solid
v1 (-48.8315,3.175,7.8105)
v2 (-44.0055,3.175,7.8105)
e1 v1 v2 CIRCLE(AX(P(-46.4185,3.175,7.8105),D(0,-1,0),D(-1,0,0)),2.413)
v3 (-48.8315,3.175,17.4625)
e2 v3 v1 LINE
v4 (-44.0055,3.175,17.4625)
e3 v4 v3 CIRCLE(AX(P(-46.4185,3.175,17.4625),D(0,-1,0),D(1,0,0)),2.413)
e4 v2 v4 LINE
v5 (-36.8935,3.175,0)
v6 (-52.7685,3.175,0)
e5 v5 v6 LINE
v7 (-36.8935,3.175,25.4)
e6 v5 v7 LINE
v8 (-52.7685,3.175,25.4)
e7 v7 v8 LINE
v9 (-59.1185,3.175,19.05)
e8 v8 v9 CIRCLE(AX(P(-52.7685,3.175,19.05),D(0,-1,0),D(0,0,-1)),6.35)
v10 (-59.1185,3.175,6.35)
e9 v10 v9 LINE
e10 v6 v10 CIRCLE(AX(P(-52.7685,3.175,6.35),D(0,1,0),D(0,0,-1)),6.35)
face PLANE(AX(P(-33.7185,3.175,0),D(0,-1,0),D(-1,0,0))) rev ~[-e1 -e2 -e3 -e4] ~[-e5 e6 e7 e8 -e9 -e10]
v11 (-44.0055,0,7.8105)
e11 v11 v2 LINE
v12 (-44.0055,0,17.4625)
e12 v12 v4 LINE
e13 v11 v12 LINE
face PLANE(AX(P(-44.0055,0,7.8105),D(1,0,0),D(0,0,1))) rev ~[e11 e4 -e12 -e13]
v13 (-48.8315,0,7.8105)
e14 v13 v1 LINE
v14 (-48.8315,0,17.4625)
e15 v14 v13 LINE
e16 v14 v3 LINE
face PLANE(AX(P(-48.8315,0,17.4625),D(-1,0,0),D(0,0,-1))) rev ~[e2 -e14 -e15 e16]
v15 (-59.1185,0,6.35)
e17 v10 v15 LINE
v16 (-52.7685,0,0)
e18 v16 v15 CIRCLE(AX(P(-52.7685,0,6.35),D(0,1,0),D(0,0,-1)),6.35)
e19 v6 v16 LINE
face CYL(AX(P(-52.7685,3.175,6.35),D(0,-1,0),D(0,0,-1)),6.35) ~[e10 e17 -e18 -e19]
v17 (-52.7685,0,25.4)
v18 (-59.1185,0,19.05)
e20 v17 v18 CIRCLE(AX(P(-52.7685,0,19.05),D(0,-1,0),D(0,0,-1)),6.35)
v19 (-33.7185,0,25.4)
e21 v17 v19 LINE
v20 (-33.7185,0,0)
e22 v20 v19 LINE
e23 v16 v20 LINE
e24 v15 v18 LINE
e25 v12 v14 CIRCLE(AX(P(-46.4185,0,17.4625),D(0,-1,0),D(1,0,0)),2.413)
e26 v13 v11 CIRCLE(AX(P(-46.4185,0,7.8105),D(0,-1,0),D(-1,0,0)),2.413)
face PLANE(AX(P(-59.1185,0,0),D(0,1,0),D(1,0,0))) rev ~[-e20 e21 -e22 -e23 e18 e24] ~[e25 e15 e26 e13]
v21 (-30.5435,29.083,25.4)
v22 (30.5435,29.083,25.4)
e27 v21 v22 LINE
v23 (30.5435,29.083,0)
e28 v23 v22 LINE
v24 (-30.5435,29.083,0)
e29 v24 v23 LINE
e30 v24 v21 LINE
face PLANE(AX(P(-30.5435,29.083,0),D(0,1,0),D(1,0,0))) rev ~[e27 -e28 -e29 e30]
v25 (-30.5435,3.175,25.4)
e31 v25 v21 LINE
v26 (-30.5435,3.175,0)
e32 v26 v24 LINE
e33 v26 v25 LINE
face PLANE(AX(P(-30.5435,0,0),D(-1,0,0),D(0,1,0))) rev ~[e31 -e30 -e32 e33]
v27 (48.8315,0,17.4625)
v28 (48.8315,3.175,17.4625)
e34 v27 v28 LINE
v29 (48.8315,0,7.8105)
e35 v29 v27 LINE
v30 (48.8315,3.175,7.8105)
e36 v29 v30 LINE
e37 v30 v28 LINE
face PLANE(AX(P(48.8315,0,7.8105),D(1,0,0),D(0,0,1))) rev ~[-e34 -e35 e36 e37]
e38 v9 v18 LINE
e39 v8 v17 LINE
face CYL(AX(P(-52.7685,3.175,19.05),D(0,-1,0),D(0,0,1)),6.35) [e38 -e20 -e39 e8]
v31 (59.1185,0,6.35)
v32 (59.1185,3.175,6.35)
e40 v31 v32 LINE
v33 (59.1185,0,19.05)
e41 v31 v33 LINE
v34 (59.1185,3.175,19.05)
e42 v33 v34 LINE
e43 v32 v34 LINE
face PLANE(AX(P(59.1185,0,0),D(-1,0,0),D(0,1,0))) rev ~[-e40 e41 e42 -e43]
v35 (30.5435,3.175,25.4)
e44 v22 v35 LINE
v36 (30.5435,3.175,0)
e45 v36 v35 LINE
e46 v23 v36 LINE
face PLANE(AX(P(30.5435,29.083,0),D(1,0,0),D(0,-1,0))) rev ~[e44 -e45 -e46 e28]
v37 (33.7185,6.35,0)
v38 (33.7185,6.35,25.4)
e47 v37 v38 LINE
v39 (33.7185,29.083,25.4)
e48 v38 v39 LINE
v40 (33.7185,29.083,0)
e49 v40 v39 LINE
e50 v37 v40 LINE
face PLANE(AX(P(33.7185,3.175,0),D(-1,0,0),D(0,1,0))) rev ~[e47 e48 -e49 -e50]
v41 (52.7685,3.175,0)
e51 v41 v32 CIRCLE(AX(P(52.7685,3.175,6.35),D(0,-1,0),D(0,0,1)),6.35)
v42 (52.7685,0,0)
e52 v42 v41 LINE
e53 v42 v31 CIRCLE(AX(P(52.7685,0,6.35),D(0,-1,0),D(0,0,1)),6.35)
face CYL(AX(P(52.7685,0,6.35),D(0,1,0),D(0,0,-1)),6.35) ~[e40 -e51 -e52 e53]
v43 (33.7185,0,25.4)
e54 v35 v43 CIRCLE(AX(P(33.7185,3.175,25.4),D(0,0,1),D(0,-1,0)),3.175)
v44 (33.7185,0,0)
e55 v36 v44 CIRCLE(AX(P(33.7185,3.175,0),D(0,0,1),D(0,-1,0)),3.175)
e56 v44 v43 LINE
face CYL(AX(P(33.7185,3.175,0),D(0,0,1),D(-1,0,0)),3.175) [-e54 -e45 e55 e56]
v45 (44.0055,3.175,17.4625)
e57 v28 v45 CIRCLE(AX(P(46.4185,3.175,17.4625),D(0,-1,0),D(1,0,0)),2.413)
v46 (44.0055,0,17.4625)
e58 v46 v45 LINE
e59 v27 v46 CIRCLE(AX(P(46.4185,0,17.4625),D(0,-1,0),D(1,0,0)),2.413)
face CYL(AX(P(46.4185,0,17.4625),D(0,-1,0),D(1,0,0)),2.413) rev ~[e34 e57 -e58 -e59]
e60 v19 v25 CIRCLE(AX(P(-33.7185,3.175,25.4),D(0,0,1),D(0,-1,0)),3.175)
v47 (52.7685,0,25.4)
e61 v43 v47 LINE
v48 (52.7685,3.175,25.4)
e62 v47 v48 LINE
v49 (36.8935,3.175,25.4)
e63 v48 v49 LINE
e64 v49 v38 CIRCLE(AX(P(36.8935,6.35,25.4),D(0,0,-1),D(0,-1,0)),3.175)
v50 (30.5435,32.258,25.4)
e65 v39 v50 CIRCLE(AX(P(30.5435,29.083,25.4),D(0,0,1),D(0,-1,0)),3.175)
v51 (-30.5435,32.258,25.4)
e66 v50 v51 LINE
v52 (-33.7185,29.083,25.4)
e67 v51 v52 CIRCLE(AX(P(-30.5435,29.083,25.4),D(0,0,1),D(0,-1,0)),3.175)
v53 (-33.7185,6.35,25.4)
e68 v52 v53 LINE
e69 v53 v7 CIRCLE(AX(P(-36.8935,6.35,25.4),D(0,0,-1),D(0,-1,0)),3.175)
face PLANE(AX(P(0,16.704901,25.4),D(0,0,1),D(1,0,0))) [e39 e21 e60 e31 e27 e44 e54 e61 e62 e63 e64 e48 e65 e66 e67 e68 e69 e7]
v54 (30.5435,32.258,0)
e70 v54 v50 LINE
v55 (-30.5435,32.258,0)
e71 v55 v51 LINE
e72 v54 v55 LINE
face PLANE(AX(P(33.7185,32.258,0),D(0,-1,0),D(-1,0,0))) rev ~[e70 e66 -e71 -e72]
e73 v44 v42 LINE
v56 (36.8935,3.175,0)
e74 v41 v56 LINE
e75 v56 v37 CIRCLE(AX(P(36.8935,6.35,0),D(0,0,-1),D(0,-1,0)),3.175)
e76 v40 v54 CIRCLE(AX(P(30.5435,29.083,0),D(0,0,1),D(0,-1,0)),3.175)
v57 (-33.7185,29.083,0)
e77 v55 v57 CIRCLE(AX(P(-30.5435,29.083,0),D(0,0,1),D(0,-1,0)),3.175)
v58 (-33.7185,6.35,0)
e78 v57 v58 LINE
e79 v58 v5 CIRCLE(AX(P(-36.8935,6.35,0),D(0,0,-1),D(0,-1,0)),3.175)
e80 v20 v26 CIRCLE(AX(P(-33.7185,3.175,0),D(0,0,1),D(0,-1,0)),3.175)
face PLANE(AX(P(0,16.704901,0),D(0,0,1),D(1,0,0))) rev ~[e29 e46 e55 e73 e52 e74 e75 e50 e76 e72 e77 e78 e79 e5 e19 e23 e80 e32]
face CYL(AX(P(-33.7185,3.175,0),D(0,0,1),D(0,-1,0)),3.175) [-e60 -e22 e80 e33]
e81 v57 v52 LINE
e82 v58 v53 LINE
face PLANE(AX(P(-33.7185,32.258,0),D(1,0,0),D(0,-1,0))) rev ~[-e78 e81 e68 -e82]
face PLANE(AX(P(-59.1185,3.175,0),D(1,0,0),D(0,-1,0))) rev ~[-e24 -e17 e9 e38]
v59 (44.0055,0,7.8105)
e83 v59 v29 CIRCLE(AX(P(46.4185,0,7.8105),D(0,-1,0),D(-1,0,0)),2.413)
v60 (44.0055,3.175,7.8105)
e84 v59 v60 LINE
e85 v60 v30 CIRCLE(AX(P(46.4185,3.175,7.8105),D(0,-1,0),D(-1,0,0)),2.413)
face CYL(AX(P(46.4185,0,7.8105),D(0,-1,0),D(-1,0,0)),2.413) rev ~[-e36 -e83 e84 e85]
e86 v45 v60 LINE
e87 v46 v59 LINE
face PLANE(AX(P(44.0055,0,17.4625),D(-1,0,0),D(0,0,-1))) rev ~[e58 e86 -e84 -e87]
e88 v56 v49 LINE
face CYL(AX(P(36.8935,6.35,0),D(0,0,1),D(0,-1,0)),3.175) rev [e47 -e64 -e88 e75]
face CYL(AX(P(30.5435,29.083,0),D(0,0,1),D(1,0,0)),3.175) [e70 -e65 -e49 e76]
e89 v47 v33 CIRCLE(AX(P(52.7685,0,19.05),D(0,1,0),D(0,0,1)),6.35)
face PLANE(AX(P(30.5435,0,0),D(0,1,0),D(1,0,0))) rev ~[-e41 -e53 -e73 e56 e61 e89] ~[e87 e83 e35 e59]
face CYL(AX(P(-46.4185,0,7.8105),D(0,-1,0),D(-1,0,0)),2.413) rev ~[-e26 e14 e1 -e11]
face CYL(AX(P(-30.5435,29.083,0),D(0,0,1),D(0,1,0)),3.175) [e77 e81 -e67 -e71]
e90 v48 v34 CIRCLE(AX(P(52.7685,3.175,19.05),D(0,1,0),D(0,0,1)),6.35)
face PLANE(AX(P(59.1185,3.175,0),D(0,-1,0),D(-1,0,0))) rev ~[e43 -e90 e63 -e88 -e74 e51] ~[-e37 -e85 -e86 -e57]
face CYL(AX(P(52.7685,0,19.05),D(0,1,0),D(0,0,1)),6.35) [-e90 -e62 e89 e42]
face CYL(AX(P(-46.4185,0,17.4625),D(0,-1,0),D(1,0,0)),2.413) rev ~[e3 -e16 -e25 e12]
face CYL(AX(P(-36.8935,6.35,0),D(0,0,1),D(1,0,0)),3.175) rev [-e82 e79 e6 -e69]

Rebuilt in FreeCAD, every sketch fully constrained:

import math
import FreeCAD as App
import Part
import Sketcher
from FreeCAD import Vector
Q = App.Units.Quantity


def edges_at(feature, points):
    """Names of the edges that pass closest to the given points."""
    edges = feature.Shape.Edges
    near = lambda p: min(range(len(edges)), key=lambda i: edges[i].distToShape(Part.Vertex(*p))[0])
    return sorted({f"Edge{near(p) + 1}" for p in points})

doc = App.newDocument("Part")
body = doc.addObject("PartDesign::Body", "Body")

# Sketch on XY plane
sketch1 = doc.addObject("Sketcher::SketchObject", "Sketch")
body.addObject(sketch1)
sketch1.AttachmentSupport = (doc.XY_Plane, [""])
sketch1.MapMode = "FlatFace"
sketch1.addGeometry([
    Part.LineSegment(Vector(-30.5, 29.1, 0), Vector(30.5, 29.1, 0)),  # 0
    Part.LineSegment(Vector(30.5, 29.1, 0), Vector(30.5, 0, 0)),  # 1
    Part.LineSegment(Vector(30.5, 0, 0), Vector(59.1, 0, 0)),  # 2
    Part.LineSegment(Vector(59.1, 0, 0), Vector(59.1, 3.2, 0)),  # 3
    Part.LineSegment(Vector(59.1, 3.2, 0), Vector(33.7, 3.2, 0)),  # 4
    Part.LineSegment(Vector(33.7, 3.2, 0), Vector(33.7, 32.3, 0)),  # 5
    Part.LineSegment(Vector(33.7, 32.3, 0), Vector(-33.7, 32.3, 0)),  # 6
    Part.LineSegment(Vector(-33.7, 32.3, 0), Vector(-33.7, 3.2, 0)),  # 7
    Part.LineSegment(Vector(-33.7, 3.2, 0), Vector(-59.1, 3.2, 0)),  # 8
    Part.LineSegment(Vector(-59.1, 3.2, 0), Vector(-59.1, 0, 0)),  # 9
    Part.LineSegment(Vector(-59.1, 0, 0), Vector(-30.5, 0, 0)),  # 10
    Part.LineSegment(Vector(-30.5, 0, 0), Vector(-30.5, 29.1, 0)),  # 11
], False)
sketch1.addConstraint([
    Sketcher.Constraint("Coincident", 0, 2, 1, 1),
    Sketcher.Constraint("Coincident", 1, 2, 2, 1),
    Sketcher.Constraint("Coincident", 2, 2, 3, 1),
    Sketcher.Constraint("Coincident", 3, 2, 4, 1),
    Sketcher.Constraint("Coincident", 4, 2, 5, 1),
    Sketcher.Constraint("Coincident", 5, 2, 6, 1),
    Sketcher.Constraint("Coincident", 6, 2, 7, 1),
    Sketcher.Constraint("Coincident", 7, 2, 8, 1),
    Sketcher.Constraint("Coincident", 8, 2, 9, 1),
    Sketcher.Constraint("Coincident", 9, 2, 10, 1),
    Sketcher.Constraint("Coincident", 10, 2, 11, 1),
    Sketcher.Constraint("Coincident", 11, 2, 0, 1),
    Sketcher.Constraint("Horizontal", 0),
    Sketcher.Constraint("Vertical", 1),
    Sketcher.Constraint("Horizontal", 2),
    Sketcher.Constraint("Vertical", 3),
    Sketcher.Constraint("Horizontal", 4),
    Sketcher.Constraint("Vertical", 5),
    Sketcher.Constraint("Horizontal", 6),
    Sketcher.Constraint("Vertical", 7),
    Sketcher.Constraint("Horizontal", 8),
    Sketcher.Constraint("Vertical", 9),
    Sketcher.Constraint("Horizontal", 10),
    Sketcher.Constraint("Vertical", 11),
    Sketcher.Constraint("Symmetric", 2, 2, 9, 2, -1, 1),
    Sketcher.Constraint("Symmetric", 4, 2, 7, 2, -2),
    Sketcher.Constraint("Symmetric", 1, 2, 10, 2, -2),
    Sketcher.Constraint("Equal", 1, 5),
    Sketcher.Constraint("DistanceX", 4, 2, 4, 1, Q("1 in")),
    Sketcher.Constraint("DistanceX", 0, 1, 0, 2, Q("2.405 in")),
    Sketcher.Constraint("DistanceX", 2, 1, 2, 2, Q("1.125 in")),
    Sketcher.Constraint("DistanceY", 1, 2, 1, 1, Q("1.145 in")),
    Sketcher.Constraint("DistanceY", 3, 1, 3, 2, Q("0.125 in")),
])
pad1 = doc.addObject("PartDesign::Pad", "Pad")
body.addObject(pad1)
pad1.Profile = sketch1
pad1.Length = Q("1 in")
doc.recompute()

fillet = doc.addObject("PartDesign::Fillet", "Fillet")
body.addObject(fillet)
fillet.Base = (pad1, edges_at(pad1, [(-30.544, 0, 12.7), (30.544, 0, 12.7)]))
fillet.Radius = Q("0.125 in")

# Sketch on XZ plane
sketch2 = doc.addObject("Sketcher::SketchObject", "Sketch001")
body.addObject(sketch2)
sketch2.AttachmentSupport = (doc.XZ_Plane, [""])
sketch2.MapMode = "FlatFace"
sketch2.addGeometry([
    Part.ArcOfCircle(Part.Circle(Vector(-46.4, 7.8, 0), Vector(0, 0, 1), 2.4), math.radians(180), math.radians(360)),  # 0
    Part.LineSegment(Vector(-44, 7.8, 0), Vector(-44, 17.5, 0)),  # 1
    Part.ArcOfCircle(Part.Circle(Vector(-46.4, 17.5, 0), Vector(0, 0, 1), 2.4), math.radians(0), math.radians(180)),  # 2
    Part.LineSegment(Vector(-48.8, 17.5, 0), Vector(-48.8, 7.8, 0)),  # 3
    Part.LineSegment(Vector(44, 17.5, 0), Vector(44, 7.8, 0)),  # 4
    Part.ArcOfCircle(Part.Circle(Vector(46.4, 7.8, 0), Vector(0, 0, 1), 2.4), math.radians(180), math.radians(360)),  # 5
    Part.LineSegment(Vector(48.8, 7.8, 0), Vector(48.8, 17.5, 0)),  # 6
    Part.ArcOfCircle(Part.Circle(Vector(46.4, 17.5, 0), Vector(0, 0, 1), 2.4), math.radians(0), math.radians(180)),  # 7
], False)
sketch2.addConstraint([
    Sketcher.Constraint("Tangent", 0, 2, 1, 1),
    Sketcher.Constraint("Tangent", 1, 2, 2, 1),
    Sketcher.Constraint("Tangent", 2, 2, 3, 1),
    Sketcher.Constraint("Tangent", 3, 2, 0, 1),
    Sketcher.Constraint("Tangent", 4, 2, 5, 1),
    Sketcher.Constraint("Tangent", 5, 2, 6, 1),
    Sketcher.Constraint("Tangent", 6, 2, 7, 1),
    Sketcher.Constraint("Tangent", 7, 2, 4, 1),
    Sketcher.Constraint("Vertical", 1),
    Sketcher.Constraint("Vertical", 3),
    Sketcher.Constraint("Vertical", 4),
    Sketcher.Constraint("Vertical", 6),
    Sketcher.Constraint("Equal", 2, 5),
    Sketcher.Constraint("Symmetric", 0, 3, 5, 3, -2),
    Sketcher.Constraint("Horizontal", 2, 3, 7, 3),
    Sketcher.Constraint("Radius", 0, Q("0.095 in")),
    Sketcher.Constraint("DistanceY", 1, 1, 1, 2, Q("0.38 in")),
    Sketcher.Constraint("DistanceX", 0, 2, 5, 3, Q("3.56 in")),
    Sketcher.Constraint("DistanceY", -1, 1, 2, 3, Q("0.6875 in")),
])
pocket1 = doc.addObject("PartDesign::Pocket", "Pocket")
body.addObject(pocket1)
pocket1.Profile = sketch2
pocket1.Type = "ThroughAll"
doc.recompute()

fillet2 = doc.addObject("PartDesign::Fillet", "Fillet001")
body.addObject(fillet2)
fillet2.Base = (pocket1, edges_at(pocket1, [
    (-59.118, 1.587, 0),
    (-59.118, 1.587, 25.4),
    (59.118, 1.587, 25.4),
    (59.118, 1.587, 0),
]))
fillet2.Radius = Q("0.25 in")
doc.recompute()

fillet3 = doc.addObject("PartDesign::Fillet", "Fillet002")
body.addObject(fillet3)
fillet3.Base = (fillet2, edges_at(fillet2, [
    (-33.718, 3.175, 12.7),
    (-33.718, 32.258, 12.7),
    (33.718, 32.258, 12.7),
    (33.718, 3.175, 12.7),
]))
fillet3.Radius = Q("0.125 in")

doc.recompute()
